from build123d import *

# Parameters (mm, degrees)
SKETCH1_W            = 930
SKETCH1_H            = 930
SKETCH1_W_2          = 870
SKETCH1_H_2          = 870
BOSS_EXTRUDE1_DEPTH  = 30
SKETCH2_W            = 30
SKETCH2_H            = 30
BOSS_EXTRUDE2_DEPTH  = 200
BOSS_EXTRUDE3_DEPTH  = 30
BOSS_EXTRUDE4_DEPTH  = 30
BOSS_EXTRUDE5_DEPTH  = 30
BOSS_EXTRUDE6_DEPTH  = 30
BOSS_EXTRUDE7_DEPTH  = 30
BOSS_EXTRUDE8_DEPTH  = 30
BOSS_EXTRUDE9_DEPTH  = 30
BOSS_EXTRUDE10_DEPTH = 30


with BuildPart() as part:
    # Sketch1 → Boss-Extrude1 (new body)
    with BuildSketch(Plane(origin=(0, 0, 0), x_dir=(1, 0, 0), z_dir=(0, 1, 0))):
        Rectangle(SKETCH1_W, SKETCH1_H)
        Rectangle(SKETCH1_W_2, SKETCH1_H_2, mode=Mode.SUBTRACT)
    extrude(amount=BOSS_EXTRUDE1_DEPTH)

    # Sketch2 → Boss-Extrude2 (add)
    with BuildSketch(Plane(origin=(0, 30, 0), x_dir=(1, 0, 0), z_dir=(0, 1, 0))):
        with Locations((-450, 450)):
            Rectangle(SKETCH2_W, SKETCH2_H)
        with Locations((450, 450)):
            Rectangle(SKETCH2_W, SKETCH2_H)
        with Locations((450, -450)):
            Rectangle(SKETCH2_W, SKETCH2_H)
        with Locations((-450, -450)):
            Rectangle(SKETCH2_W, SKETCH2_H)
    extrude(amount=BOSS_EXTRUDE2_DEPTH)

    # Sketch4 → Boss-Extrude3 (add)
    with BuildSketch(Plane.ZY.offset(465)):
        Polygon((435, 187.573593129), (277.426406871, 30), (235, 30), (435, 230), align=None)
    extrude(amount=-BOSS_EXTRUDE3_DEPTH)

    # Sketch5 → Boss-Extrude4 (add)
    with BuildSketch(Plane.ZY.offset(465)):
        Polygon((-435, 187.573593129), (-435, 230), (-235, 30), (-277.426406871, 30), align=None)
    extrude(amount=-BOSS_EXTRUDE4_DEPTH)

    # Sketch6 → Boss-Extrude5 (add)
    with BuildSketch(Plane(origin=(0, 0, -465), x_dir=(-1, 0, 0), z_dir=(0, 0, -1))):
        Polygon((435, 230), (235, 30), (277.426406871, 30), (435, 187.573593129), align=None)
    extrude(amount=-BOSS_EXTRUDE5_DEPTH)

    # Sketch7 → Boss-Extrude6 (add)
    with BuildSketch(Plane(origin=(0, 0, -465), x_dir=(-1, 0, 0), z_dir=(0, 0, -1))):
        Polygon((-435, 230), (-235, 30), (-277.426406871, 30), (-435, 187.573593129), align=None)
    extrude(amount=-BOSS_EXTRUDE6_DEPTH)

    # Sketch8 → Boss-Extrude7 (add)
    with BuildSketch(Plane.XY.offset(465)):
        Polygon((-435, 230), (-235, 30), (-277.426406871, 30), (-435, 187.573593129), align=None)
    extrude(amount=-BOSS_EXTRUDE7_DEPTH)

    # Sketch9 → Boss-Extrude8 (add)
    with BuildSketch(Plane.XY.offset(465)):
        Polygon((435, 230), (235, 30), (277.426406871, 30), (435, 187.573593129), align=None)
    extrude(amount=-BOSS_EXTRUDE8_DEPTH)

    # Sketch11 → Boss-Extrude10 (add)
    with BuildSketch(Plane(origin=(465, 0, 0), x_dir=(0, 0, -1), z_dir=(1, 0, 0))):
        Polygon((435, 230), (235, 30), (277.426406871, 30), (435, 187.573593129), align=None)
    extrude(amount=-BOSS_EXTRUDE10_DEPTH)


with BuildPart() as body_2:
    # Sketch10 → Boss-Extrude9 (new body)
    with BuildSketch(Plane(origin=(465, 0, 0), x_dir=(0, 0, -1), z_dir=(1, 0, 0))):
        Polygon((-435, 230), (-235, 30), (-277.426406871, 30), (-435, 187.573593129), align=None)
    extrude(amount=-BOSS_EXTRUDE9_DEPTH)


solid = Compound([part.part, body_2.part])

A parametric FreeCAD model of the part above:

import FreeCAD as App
import Part
import Sketcher
from FreeCAD import Vector


def add_polygon(sketch, points):
    """Adds a closed chain of lines whose ends are joined by coincident constraints."""
    first, n = sketch.GeometryCount, len(points)
    for a, b in zip(points, points[1:] + points[:1]):
        sketch.addGeometry(Part.LineSegment(App.Vector(*a, 0), App.Vector(*b, 0)), False)
    for i in range(n):
        sketch.addConstraint(Sketcher.Constraint("Coincident", first + i, 2, first + (i + 1) % n, 1))

doc = App.newDocument("Part")
body = doc.addObject("PartDesign::Body", "Body")

sketch1 = body.newObject("Sketcher::SketchObject", "Sketch")
sketch1.AttachmentSupport = (doc.getObject("XZ_Plane"), [""])
sketch1.MapMode = "FlatFace"
add_polygon(sketch1, [(-465, -465), (-465, 465), (465, 465), (465, -465)])
add_polygon(sketch1, [(435, 435), (-435, 435), (-435, -435), (435, -435)])
sketch1.addConstraint(Sketcher.Constraint("Vertical", 0))
sketch1.addConstraint(Sketcher.Constraint("Horizontal", 1))
sketch1.addConstraint(Sketcher.Constraint("Vertical", 2))
sketch1.addConstraint(Sketcher.Constraint("Horizontal", 3))
sketch1.addConstraint(Sketcher.Constraint("Horizontal", 4))
sketch1.addConstraint(Sketcher.Constraint("Vertical", 5))
sketch1.addConstraint(Sketcher.Constraint("Horizontal", 6))
sketch1.addConstraint(Sketcher.Constraint("Vertical", 7))
sketch1.addConstraint(Sketcher.Constraint("Symmetric", 0, 2, 2, 2, -1, 1))
sketch1.addConstraint(Sketcher.Constraint("Symmetric", 4, 2, 6, 2, -1, 1))
sketch1.addConstraint(Sketcher.Constraint("Equal", 3, 0))
sketch1.addConstraint(Sketcher.Constraint("Equal", 6, 5))
sketch1.addConstraint(Sketcher.Constraint("DistanceX", 1, 1, 1, 2, 930.0))
sketch1.addConstraint(Sketcher.Constraint("DistanceX", 4, 2, 4, 1, 870.0))
pad1 = body.newObject("PartDesign::Pad", "Pad")
pad1.Profile = sketch1
pad1.Length = 30
pad1.Reversed = True

sketch2 = body.newObject("Sketcher::SketchObject", "Sketch001")
sketch2.AttachmentSupport = (doc.getObject("XZ_Plane"), [""])
sketch2.MapMode = "FlatFace"
sketch2.AttachmentOffset = App.Placement(Vector(0, 0, -30), App.Rotation())
add_polygon(sketch2, [(-465, -465), (-465, -435), (-435, -435), (-435, -465)])
add_polygon(sketch2, [(435, -465), (435, -435), (465, -435), (465, -465)])
add_polygon(sketch2, [(435, 435), (435, 465), (465, 465), (465, 435)])
add_polygon(sketch2, [(-465, 435), (-465, 465), (-435, 465), (-435, 435)])
sketch2.addConstraint(Sketcher.Constraint("Vertical", 0))
sketch2.addConstraint(Sketcher.Constraint("Horizontal", 1))
sketch2.addConstraint(Sketcher.Constraint("Vertical", 2))
sketch2.addConstraint(Sketcher.Constraint("Horizontal", 3))
sketch2.addConstraint(Sketcher.Constraint("Vertical", 4))
sketch2.addConstraint(Sketcher.Constraint("Horizontal", 5))
sketch2.addConstraint(Sketcher.Constraint("Vertical", 6))
sketch2.addConstraint(Sketcher.Constraint("Horizontal", 7))
sketch2.addConstraint(Sketcher.Constraint("Vertical", 8))
sketch2.addConstraint(Sketcher.Constraint("Horizontal", 9))
sketch2.addConstraint(Sketcher.Constraint("Vertical", 10))
sketch2.addConstraint(Sketcher.Constraint("Horizontal", 11))
sketch2.addConstraint(Sketcher.Constraint("Vertical", 12))
sketch2.addConstraint(Sketcher.Constraint("Horizontal", 13))
sketch2.addConstraint(Sketcher.Constraint("Vertical", 14))
sketch2.addConstraint(Sketcher.Constraint("Horizontal", 15))
sketch2.addConstraint(Sketcher.Constraint("Symmetric", 2, 2, 8, 2, -1, 1))
sketch2.addConstraint(Sketcher.Constraint("Symmetric", 0, 2, 10, 2, -1, 1))
sketch2.addConstraint(Sketcher.Constraint("Symmetric", 6, 2, 12, 2, -1, 1))
sketch2.addConstraint(Sketcher.Constraint("Symmetric", 4, 2, 14, 2, -1, 1))
sketch2.addConstraint(Sketcher.Constraint("Symmetric", 1, 2, 4, 2, -2))
sketch2.addConstraint(Sketcher.Constraint("Symmetric", 3, 2, 6, 2, -2))
sketch2.addConstraint(Sketcher.Constraint("Equal", 15, 0))
sketch2.addConstraint(Sketcher.Constraint("DistanceX", 1, 1, 1, 2, 30.0))
sketch2.addConstraint(Sketcher.Constraint("DistanceX", 0, 2, -1, 1, 465.0))
sketch2.addConstraint(Sketcher.Constraint("DistanceY", 0, 2, -1, 1, 435.0))
pad2 = body.newObject("PartDesign::Pad", "Pad001")
pad2.Profile = sketch2
pad2.Length = 200
pad2.Reversed = True

sketch3 = body.newObject("Sketcher::SketchObject", "Sketch002")
sketch3.AttachmentSupport = (doc.getObject("YZ_Plane"), [""])
sketch3.MapMode = "FlatFace"
sketch3.AttachmentOffset = App.Placement(Vector(0, 0, -465), App.Rotation())
add_polygon(sketch3, [(30, 277.426407), (187.573593, 435), (230, 435), (30, 235)])
sketch3.addConstraint(Sketcher.Constraint("Horizontal", 1))
sketch3.addConstraint(Sketcher.Constraint("Vertical", 3))
sketch3.addConstraint(Sketcher.Constraint("Parallel", 0, 2))
sketch3.addConstraint(Sketcher.Constraint("Equal", 1, 3))
sketch3.addConstraint(Sketcher.Constraint("DistanceY", -1, 1, 0, 2, 435.0))
sketch3.addConstraint(Sketcher.Constraint("DistanceX", -1, 1, 1, 2, 230.0))
sketch3.addConstraint(Sketcher.Constraint("DistanceX", -1, 1, 2, 2, 30.0))
sketch3.addConstraint(Sketcher.Constraint("DistanceX", 1, 1, 1, 2, 42.426407))
pad3 = body.newObject("PartDesign::Pad", "Pad002")
pad3.Profile = sketch3
pad3.Length = 30

sketch4 = body.newObject("Sketcher::SketchObject", "Sketch003")
sketch4.AttachmentSupport = (doc.getObject("YZ_Plane"), [""])
sketch4.MapMode = "FlatFace"
sketch4.AttachmentOffset = App.Placement(Vector(0, 0, -465), App.Rotation())
add_polygon(sketch4, [(230, -435), (187.573593, -435), (30, -277.426407), (30, -235)])
sketch4.addConstraint(Sketcher.Constraint("Horizontal", 0))
sketch4.addConstraint(Sketcher.Constraint("Vertical", 2))
sketch4.addConstraint(Sketcher.Constraint("Parallel", 1, 3))
sketch4.addConstraint(Sketcher.Constraint("Equal", 0, 2))
sketch4.addConstraint(Sketcher.Constraint("DistanceY", 0, 2, -1, 1, 435.0))
sketch4.addConstraint(Sketcher.Constraint("DistanceX", -1, 1, 1, 2, 30.0))
sketch4.addConstraint(Sketcher.Constraint("DistanceY", 2, 2, -1, 1, 235.0))
sketch4.addConstraint(Sketcher.Constraint("DistanceX", 0, 2, 0, 1, 42.426407))
pad4 = body.newObject("PartDesign::Pad", "Pad003")
pad4.Profile = sketch4
pad4.Length = 30

sketch5 = body.newObject("Sketcher::SketchObject", "Sketch004")
sketch5.AttachmentSupport = (doc.getObject("XY_Plane"), [""])
sketch5.MapMode = "FlatFace"
sketch5.AttachmentOffset = App.Placement(Vector(0, 0, -465), App.Rotation())
add_polygon(sketch5, [(-435, 230), (-235, 30), (-277.426407, 30), (-435, 187.573593)])
sketch5.addConstraint(Sketcher.Constraint("Horizontal", 1))
sketch5.addConstraint(Sketcher.Constraint("Vertical", 3))
sketch5.addConstraint(Sketcher.Constraint("Parallel", 0, 2))
sketch5.addConstraint(Sketcher.Constraint("Equal", 1, 3))
sketch5.addConstraint(Sketcher.Constraint("DistanceX", 0, 2, -1, 1, 235.0))
sketch5.addConstraint(Sketcher.Constraint("DistanceY", -1, 1, 0, 2, 30.0))
sketch5.addConstraint(Sketcher.Constraint("DistanceX", 2, 2, -1, 1, 435.0))
sketch5.addConstraint(Sketcher.Constraint("DistanceX", 1, 2, 1, 1, 42.426407))
pad5 = body.newObject("PartDesign::Pad", "Pad004")
pad5.Profile = sketch5
pad5.Length = 30

sketch6 = body.newObject("Sketcher::SketchObject", "Sketch005")
sketch6.AttachmentSupport = (doc.getObject("XY_Plane"), [""])
sketch6.MapMode = "FlatFace"
sketch6.AttachmentOffset = App.Placement(Vector(0, 0, -465), App.Rotation())
add_polygon(sketch6, [(235, 30), (435, 230), (435, 187.573593), (277.426407, 30)])
sketch6.addConstraint(Sketcher.Constraint("Vertical", 1))
sketch6.addConstraint(Sketcher.Constraint("Horizontal", 3))
sketch6.addConstraint(Sketcher.Constraint("Parallel", 0, 2))
sketch6.addConstraint(Sketcher.Constraint("Equal", 3, 1))
sketch6.addConstraint(Sketcher.Constraint("DistanceX", -1, 1, 0, 2, 435.0))
sketch6.addConstraint(Sketcher.Constraint("DistanceY", -1, 1, 0, 2, 230.0))
sketch6.addConstraint(Sketcher.Constraint("DistanceY", -1, 1, 2, 2, 30.0))
sketch6.addConstraint(Sketcher.Constraint("DistanceX", 3, 2, 3, 1, 42.426407))
pad6 = body.newObject("PartDesign::Pad", "Pad005")
pad6.Profile = sketch6
pad6.Length = 30

sketch7 = body.newObject("Sketcher::SketchObject", "Sketch006")
sketch7.AttachmentSupport = (doc.getObject("XY_Plane"), [""])
sketch7.MapMode = "FlatFace"
sketch7.AttachmentOffset = App.Placement(Vector(0, 0, 465), App.Rotation())
add_polygon(sketch7, [(-235, 30), (-435, 230), (-435, 187.573593), (-277.426407, 30)])
sketch7.addConstraint(Sketcher.Constraint("Vertical", 1))
sketch7.addConstraint(Sketcher.Constraint("Horizontal", 3))
sketch7.addConstraint(Sketcher.Constraint("Parallel", 0, 2))
sketch7.addConstraint(Sketcher.Constraint("Equal", 3, 1))
sketch7.addConstraint(Sketcher.Constraint("DistanceX", 0, 2, -1, 1, 435.0))
sketch7.addConstraint(Sketcher.Constraint("DistanceY", -1, 1, 0, 2, 230.0))
sketch7.addConstraint(Sketcher.Constraint("DistanceY", -1, 1, 2, 2, 30.0))
sketch7.addConstraint(Sketcher.Constraint("DistanceX", 3, 1, 3, 2, 42.426407))
pad7 = body.newObject("PartDesign::Pad", "Pad006")
pad7.Profile = sketch7
pad7.Length = 30
pad7.Reversed = True

sketch8 = body.newObject("Sketcher::SketchObject", "Sketch007")
sketch8.AttachmentSupport = (doc.getObject("XY_Plane"), [""])
sketch8.MapMode = "FlatFace"
sketch8.AttachmentOffset = App.Placement(Vector(0, 0, 465), App.Rotation())
add_polygon(sketch8, [(435, 230), (235, 30), (277.426407, 30), (435, 187.573593)])
sketch8.addConstraint(Sketcher.Constraint("Horizontal", 1))
sketch8.addConstraint(Sketcher.Constraint("Vertical", 3))
sketch8.addConstraint(Sketcher.Constraint("Parallel", 0, 2))
sketch8.addConstraint(Sketcher.Constraint("Equal", 1, 3))
sketch8.addConstraint(Sketcher.Constraint("DistanceX", -1, 1, 0, 2, 235.0))
sketch8.addConstraint(Sketcher.Constraint("DistanceY", -1, 1, 0, 2, 30.0))
sketch8.addConstraint(Sketcher.Constraint("DistanceX", -1, 1, 2, 2, 435.0))
sketch8.addConstraint(Sketcher.Constraint("DistanceX", 1, 1, 1, 2, 42.426407))
pad8 = body.newObject("PartDesign::Pad", "Pad007")
pad8.Profile = sketch8
pad8.Length = 30
pad8.Reversed = True

sketch9 = body.newObject("Sketcher::SketchObject", "Sketch008")
sketch9.AttachmentSupport = (doc.getObject("YZ_Plane"), [""])
sketch9.MapMode = "FlatFace"
sketch9.AttachmentOffset = App.Placement(Vector(0, 0, 465), App.Rotation())
add_polygon(sketch9, [(230, -435), (30, -235), (30, -277.426407), (187.573593, -435)])
sketch9.addConstraint(Sketcher.Constraint("Vertical", 1))
sketch9.addConstraint(Sketcher.Constraint("Horizontal", 3))
sketch9.addConstraint(Sketcher.Constraint("Parallel", 0, 2))
sketch9.addConstraint(Sketcher.Constraint("Equal", 3, 1))
sketch9.addConstraint(Sketcher.Constraint("DistanceX", -1, 1, 0, 2, 30.0))
sketch9.addConstraint(Sketcher.Constraint("DistanceY", 0, 2, -1, 1, 235.0))
sketch9.addConstraint(Sketcher.Constraint("DistanceY", 2, 2, -1, 1, 435.0))
sketch9.addConstraint(Sketcher.Constraint("DistanceX", 3, 1, 3, 2, 42.426407))
pad9 = body.newObject("PartDesign::Pad", "Pad008")
pad9.Profile = sketch9
pad9.Length = 30
pad9.Reversed = True
body2 = doc.addObject("PartDesign::Body", "Body001")

sketch10 = body2.newObject("Sketcher::SketchObject", "Sketch009")
sketch10.AttachmentSupport = (doc.getObject("YZ_Plane001"), [""])
sketch10.MapMode = "FlatFace"
sketch10.AttachmentOffset = App.Placement(Vector(0, 0, 465), App.Rotation())
add_polygon(sketch10, [(30, 235), (230, 435), (187.573593, 435), (30, 277.426407)])
sketch10.addConstraint(Sketcher.Constraint("Horizontal", 1))
sketch10.addConstraint(Sketcher.Constraint("Vertical", 3))
sketch10.addConstraint(Sketcher.Constraint("Parallel", 0, 2))
sketch10.addConstraint(Sketcher.Constraint("Equal", 1, 3))
sketch10.addConstraint(Sketcher.Constraint("DistanceX", -1, 1, 0, 2, 230.0))
sketch10.addConstraint(Sketcher.Constraint("DistanceY", -1, 1, 0, 2, 435.0))
sketch10.addConstraint(Sketcher.Constraint("DistanceX", -1, 1, 2, 2, 30.0))
sketch10.addConstraint(Sketcher.Constraint("DistanceX", 1, 2, 1, 1, 42.426407))
pad10 = body2.newObject("PartDesign::Pad", "Pad009")
pad10.Profile = sketch10
pad10.Length = 30
pad10.Reversed = True

doc.recompute()
